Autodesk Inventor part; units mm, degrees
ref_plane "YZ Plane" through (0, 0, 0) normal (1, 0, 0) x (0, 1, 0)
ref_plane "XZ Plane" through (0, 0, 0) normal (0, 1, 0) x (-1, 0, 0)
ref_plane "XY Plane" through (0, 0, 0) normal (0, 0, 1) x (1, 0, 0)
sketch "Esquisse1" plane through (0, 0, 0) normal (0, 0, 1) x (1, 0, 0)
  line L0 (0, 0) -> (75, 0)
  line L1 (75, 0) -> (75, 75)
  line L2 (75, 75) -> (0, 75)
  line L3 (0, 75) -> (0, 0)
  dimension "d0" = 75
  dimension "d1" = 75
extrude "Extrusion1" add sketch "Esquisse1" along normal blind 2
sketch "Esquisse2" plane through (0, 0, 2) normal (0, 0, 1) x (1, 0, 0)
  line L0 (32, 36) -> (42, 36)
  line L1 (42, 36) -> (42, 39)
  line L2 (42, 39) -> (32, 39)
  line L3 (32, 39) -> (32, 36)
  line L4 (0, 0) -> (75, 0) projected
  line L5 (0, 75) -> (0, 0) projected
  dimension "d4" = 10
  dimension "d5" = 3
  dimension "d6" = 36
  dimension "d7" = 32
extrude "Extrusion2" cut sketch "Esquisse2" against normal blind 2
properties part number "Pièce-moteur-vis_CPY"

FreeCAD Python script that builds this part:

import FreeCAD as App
import Part
import Sketcher
from FreeCAD import Vector


def add_polygon(sketch, points):
    """Adds a closed chain of lines whose ends are joined by coincident constraints."""
    first, n = sketch.GeometryCount, len(points)
    for a, b in zip(points, points[1:] + points[:1]):
        sketch.addGeometry(Part.LineSegment(App.Vector(*a, 0), App.Vector(*b, 0)), False)
    for i in range(n):
        sketch.addConstraint(Sketcher.Constraint("Coincident", first + i, 2, first + (i + 1) % n, 1))

doc = App.newDocument("Part")
params = doc.addObject("Spreadsheet::Sheet", "Params")
for row, (alias, value) in enumerate([
    ("sketch1_width", "75 mm"),
    ("pad1_length", "2 mm"),
    ("sketch2_width", "10 mm"),
    ("sketch2_height", "3 mm"),
    ("pocket1_length", "2 mm"),
], start=1):
    params.set(f"A{row}", alias)
    params.set(f"B{row}", "=" + value)
    params.setAlias(f"B{row}", alias)

body = doc.addObject("PartDesign::Body", "Body")

sketch1 = body.newObject("Sketcher::SketchObject", "Sketch")
sketch1.AttachmentSupport = (doc.getObject("XY_Plane"), [""])
sketch1.MapMode = "FlatFace"
add_polygon(sketch1, [(0, 75), (0, 0), (75, 0), (75, 75)])
sketch1.addConstraint([
    Sketcher.Constraint("Vertical", 0),
    Sketcher.Constraint("Horizontal", 1),
    Sketcher.Constraint("Vertical", 2),
    Sketcher.Constraint("Horizontal", 3),
    Sketcher.Constraint("Coincident", 0, 2, -1, 1),
    Sketcher.Constraint("Equal", 3, 0),
    Sketcher.Constraint("DistanceX", 1, 1, 1, 2, 75.0),
])
sketch1.setExpression("Constraints[10]", "Params.sketch1_width")
pad1 = body.newObject("PartDesign::Pad", "Pad")
pad1.Profile = sketch1
pad1.setExpression("Length", "Params.pad1_length")

sketch2 = body.newObject("Sketcher::SketchObject", "Sketch001")
sketch2.AttachmentSupport = (doc.getObject("XY_Plane"), [""])
sketch2.MapMode = "FlatFace"
sketch2.AttachmentOffset = App.Placement(Vector(0, 0, 2), App.Rotation())
add_polygon(sketch2, [(32, 39), (32, 36), (42, 36), (42, 39)])
sketch2.addConstraint([
    Sketcher.Constraint("Vertical", 0),
    Sketcher.Constraint("Horizontal", 1),
    Sketcher.Constraint("Vertical", 2),
    Sketcher.Constraint("Horizontal", 3),
    Sketcher.Constraint("DistanceX", 1, 1, 1, 2, 10.0),
    Sketcher.Constraint("DistanceY", 0, 2, 0, 1, 3.0),
    Sketcher.Constraint("DistanceX", -1, 1, 0, 2, 32.0),
    Sketcher.Constraint("DistanceY", -1, 1, 0, 2, 36.0),
])
sketch2.setExpression("Constraints[8]", "Params.sketch2_width")
sketch2.setExpression("Constraints[9]", "Params.sketch2_height")
pocket1 = body.newObject("PartDesign::Pocket", "Pocket")
pocket1.Profile = sketch2
pocket1.setExpression("Length", "Params.pocket1_length")

doc.recompute()
